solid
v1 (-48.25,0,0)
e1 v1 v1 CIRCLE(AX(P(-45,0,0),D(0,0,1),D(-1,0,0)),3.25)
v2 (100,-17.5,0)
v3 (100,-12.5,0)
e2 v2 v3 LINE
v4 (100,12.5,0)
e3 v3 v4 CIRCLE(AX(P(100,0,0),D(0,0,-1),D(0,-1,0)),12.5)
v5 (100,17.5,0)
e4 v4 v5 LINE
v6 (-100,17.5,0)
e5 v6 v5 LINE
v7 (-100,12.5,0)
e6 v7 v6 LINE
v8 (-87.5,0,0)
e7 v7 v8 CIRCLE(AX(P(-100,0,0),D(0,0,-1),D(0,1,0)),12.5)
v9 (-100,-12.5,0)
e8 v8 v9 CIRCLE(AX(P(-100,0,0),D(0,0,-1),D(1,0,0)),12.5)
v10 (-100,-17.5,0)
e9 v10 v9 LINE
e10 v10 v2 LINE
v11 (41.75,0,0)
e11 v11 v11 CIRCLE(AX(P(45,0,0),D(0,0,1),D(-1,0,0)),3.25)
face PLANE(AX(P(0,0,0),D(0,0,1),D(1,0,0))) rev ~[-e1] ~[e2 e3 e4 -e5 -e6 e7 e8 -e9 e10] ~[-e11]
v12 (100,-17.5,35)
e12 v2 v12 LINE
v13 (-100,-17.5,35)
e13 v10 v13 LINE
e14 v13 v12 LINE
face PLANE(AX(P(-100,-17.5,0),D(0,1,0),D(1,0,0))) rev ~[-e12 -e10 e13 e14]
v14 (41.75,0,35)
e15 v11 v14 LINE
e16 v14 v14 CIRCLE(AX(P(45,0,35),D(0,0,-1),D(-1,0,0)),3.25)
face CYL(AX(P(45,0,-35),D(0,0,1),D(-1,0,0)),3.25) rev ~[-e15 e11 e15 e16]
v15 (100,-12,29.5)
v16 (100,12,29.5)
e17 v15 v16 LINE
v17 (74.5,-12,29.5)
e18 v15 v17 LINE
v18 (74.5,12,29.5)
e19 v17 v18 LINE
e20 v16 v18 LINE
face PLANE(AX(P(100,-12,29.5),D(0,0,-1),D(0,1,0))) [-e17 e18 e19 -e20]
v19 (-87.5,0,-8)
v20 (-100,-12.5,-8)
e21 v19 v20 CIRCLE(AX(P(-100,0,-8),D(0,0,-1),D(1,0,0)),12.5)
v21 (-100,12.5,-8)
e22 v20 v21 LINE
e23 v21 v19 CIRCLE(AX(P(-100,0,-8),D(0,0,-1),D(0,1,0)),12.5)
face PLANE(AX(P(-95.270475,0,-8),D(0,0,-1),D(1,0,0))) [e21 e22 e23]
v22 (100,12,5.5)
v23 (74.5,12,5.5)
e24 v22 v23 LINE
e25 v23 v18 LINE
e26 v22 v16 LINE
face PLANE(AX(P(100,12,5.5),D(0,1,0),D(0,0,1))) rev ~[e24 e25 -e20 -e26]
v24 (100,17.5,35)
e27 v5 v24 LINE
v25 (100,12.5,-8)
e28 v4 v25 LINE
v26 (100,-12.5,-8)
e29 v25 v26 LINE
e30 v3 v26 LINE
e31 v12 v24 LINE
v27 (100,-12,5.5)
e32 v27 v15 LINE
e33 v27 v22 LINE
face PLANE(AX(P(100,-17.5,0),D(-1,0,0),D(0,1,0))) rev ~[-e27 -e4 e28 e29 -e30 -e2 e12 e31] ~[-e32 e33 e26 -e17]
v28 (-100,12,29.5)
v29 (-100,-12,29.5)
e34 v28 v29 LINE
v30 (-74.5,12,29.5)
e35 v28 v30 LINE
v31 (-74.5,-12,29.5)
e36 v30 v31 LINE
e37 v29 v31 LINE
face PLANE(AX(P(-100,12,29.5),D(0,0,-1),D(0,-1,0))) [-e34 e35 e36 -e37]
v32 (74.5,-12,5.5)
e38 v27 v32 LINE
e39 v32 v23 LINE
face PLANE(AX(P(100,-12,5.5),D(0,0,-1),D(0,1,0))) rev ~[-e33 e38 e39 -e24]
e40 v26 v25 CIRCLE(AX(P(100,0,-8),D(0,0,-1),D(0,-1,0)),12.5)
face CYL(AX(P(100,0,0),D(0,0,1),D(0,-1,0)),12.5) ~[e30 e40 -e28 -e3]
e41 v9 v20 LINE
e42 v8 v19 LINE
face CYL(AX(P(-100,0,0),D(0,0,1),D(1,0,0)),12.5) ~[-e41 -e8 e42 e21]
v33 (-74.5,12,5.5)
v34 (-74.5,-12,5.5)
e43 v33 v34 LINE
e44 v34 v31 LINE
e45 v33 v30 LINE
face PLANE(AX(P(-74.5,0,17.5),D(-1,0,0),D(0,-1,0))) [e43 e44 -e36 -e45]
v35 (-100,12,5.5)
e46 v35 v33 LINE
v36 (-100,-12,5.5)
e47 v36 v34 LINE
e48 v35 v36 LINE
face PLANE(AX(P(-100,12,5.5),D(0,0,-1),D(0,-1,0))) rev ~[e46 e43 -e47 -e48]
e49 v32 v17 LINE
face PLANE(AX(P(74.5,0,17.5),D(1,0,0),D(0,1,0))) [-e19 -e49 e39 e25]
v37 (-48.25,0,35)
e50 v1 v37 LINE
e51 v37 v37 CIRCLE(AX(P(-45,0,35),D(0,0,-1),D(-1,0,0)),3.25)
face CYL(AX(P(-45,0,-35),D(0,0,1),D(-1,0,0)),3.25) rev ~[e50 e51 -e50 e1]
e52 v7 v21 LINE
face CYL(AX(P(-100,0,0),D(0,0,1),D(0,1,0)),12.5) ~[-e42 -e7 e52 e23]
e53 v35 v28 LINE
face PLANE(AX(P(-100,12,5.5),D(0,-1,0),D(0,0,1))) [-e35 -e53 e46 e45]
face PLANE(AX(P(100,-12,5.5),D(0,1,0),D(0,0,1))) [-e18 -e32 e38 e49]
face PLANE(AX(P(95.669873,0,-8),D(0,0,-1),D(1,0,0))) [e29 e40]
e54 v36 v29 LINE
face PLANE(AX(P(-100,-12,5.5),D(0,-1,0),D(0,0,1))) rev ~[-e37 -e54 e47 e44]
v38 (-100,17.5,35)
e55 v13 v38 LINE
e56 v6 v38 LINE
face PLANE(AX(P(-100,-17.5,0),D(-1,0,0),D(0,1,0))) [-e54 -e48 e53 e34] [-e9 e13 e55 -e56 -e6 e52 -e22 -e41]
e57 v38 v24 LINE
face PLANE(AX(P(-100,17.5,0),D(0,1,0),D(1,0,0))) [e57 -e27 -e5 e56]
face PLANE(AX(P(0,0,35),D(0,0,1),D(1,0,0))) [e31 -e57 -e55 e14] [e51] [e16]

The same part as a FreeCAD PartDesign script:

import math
import FreeCAD as App
import Part
import Sketcher
from FreeCAD import Vector
Q = App.Units.Quantity

doc = App.newDocument("Part")
params = doc.addObject("Spreadsheet::Sheet", "Params")
for row, (alias, value) in enumerate([
    ("sketch1_width", "200 mm"),
    ("sketch1_height", "35 mm"),
    ("pad1_length", "35 mm"),
    ("sketch2_width", "24 mm"),
    ("pocket1_length", "25.5 mm"),
    ("sketch3_width", "24 mm"),
    ("pocket2_length", "25.5 mm"),
    ("sketch4_diameter", "6.5 mm"),
    ("hole_diameter", "6.5 mm"),
    ("hole_depth", "35 mm"),
    ("sketch5_radius", "12.5 mm"),
    ("pad2_length", "8 mm"),
], start=1):
    params.set(f"A{row}", alias)
    params.set(f"B{row}", "=" + value)
    params.setAlias(f"B{row}", alias)

body = doc.addObject("PartDesign::Body", "Body")

sketch1 = body.newObject("Sketcher::SketchObject", "Sketch")
sketch1.AttachmentSupport = (doc.getObject("XY_Plane"), [""])
sketch1.MapMode = "FlatFace"
sketch1.addGeometry([
    Part.LineSegment(Vector(-100, 18, 0), Vector(-100, -18, 0)),
    Part.LineSegment(Vector(-100, -18, 0), Vector(100, -18, 0)),
    Part.LineSegment(Vector(100, -18, 0), Vector(100, 18, 0)),
    Part.LineSegment(Vector(100, 18, 0), Vector(-100, 18, 0)),
], False)
sketch1.addConstraint([
    Sketcher.Constraint("Coincident", 0, 2, 1, 1),
    Sketcher.Constraint("Coincident", 1, 2, 2, 1),
    Sketcher.Constraint("Coincident", 2, 2, 3, 1),
    Sketcher.Constraint("Coincident", 3, 2, 0, 1),
    Sketcher.Constraint("Vertical", 0),
    Sketcher.Constraint("Horizontal", 1),
    Sketcher.Constraint("Vertical", 2),
    Sketcher.Constraint("Horizontal", 3),
    Sketcher.Constraint("Symmetric", 0, 2, 2, 2, -1, 1),
    Sketcher.Constraint("DistanceX", 1, 1, 1, 2, Q("200 mm")),
    Sketcher.Constraint("DistanceY", 0, 2, 0, 1, Q("35 mm")),
])
sketch1.setExpression("Constraints[9]", "Params.sketch1_width")
sketch1.setExpression("Constraints[10]", "Params.sketch1_height")
pad1 = body.newObject("PartDesign::Pad", "Pad")
pad1.Profile = sketch1
pad1.setExpression("Length", "Params.pad1_length")

sketch2 = body.newObject("Sketcher::SketchObject", "Sketch001")
sketch2.AttachmentSupport = (doc.getObject("YZ_Plane"), [""])
sketch2.MapMode = "FlatFace"
sketch2.AttachmentOffset = App.Placement(Vector(0, 0, 100), App.Rotation())
sketch2.addGeometry([
    Part.LineSegment(Vector(-12, 30, 0), Vector(-12, 6, 0)),
    Part.LineSegment(Vector(-12, 6, 0), Vector(12, 6, 0)),
    Part.LineSegment(Vector(12, 6, 0), Vector(12, 30, 0)),
    Part.LineSegment(Vector(12, 30, 0), Vector(-12, 30, 0)),
], False)
sketch2.addConstraint([
    Sketcher.Constraint("Coincident", 0, 2, 1, 1),
    Sketcher.Constraint("Coincident", 1, 2, 2, 1),
    Sketcher.Constraint("Coincident", 2, 2, 3, 1),
    Sketcher.Constraint("Coincident", 3, 2, 0, 1),
    Sketcher.Constraint("Vertical", 0),
    Sketcher.Constraint("Horizontal", 1),
    Sketcher.Constraint("Vertical", 2),
    Sketcher.Constraint("Horizontal", 3),
    Sketcher.Constraint("Equal", 3, 0),
    Sketcher.Constraint("DistanceX", 1, 1, 1, 2, Q("24 mm")),
    Sketcher.Constraint("DistanceX", 0, 2, -1, 1, Q("12 mm")),
    Sketcher.Constraint("DistanceY", -1, 1, 0, 2, Q("5.5 mm")),
])
sketch2.setExpression("Constraints[9]", "Params.sketch2_width")
pocket1 = body.newObject("PartDesign::Pocket", "Pocket")
pocket1.Profile = sketch2
pocket1.setExpression("Length", "Params.pocket1_length")

sketch3 = body.newObject("Sketcher::SketchObject", "Sketch002")
sketch3.AttachmentSupport = (doc.getObject("YZ_Plane"), [""])
sketch3.MapMode = "FlatFace"
sketch3.AttachmentOffset = App.Placement(Vector(0, 0, -100), App.Rotation())
sketch3.addGeometry([
    Part.LineSegment(Vector(12, 30, 0), Vector(12, 6, 0)),
    Part.LineSegment(Vector(12, 6, 0), Vector(-12, 6, 0)),
    Part.LineSegment(Vector(-12, 6, 0), Vector(-12, 30, 0)),
    Part.LineSegment(Vector(-12, 30, 0), Vector(12, 30, 0)),
], False)
sketch3.addConstraint([
    Sketcher.Constraint("Coincident", 0, 2, 1, 1),
    Sketcher.Constraint("Coincident", 1, 2, 2, 1),
    Sketcher.Constraint("Coincident", 2, 2, 3, 1),
    Sketcher.Constraint("Coincident", 3, 2, 0, 1),
    Sketcher.Constraint("Vertical", 0),
    Sketcher.Constraint("Horizontal", 1),
    Sketcher.Constraint("Vertical", 2),
    Sketcher.Constraint("Horizontal", 3),
    Sketcher.Constraint("Equal", 3, 0),
    Sketcher.Constraint("DistanceX", 1, 2, 1, 1, Q("24 mm")),
    Sketcher.Constraint("DistanceX", -1, 1, 0, 2, Q("12 mm")),
    Sketcher.Constraint("DistanceY", -1, 1, 0, 2, Q("5.5 mm")),
])
sketch3.setExpression("Constraints[9]", "Params.sketch3_width")
pocket2 = body.newObject("PartDesign::Pocket", "Pocket001")
pocket2.Profile = sketch3
pocket2.setExpression("Length", "Params.pocket2_length")
pocket2.Reversed = True

sketch4 = body.newObject("Sketcher::SketchObject", "Sketch003")
sketch4.AttachmentSupport = (doc.getObject("XY_Plane"), [""])
sketch4.MapMode = "FlatFace"
sketch4.addGeometry([
    Part.Circle(Vector(-45, 0, 0), Vector(0, 0, 1), 3.2),
    Part.Circle(Vector(45, 0, 0), Vector(0, 0, 1), 3.2),
], False)
sketch4.addConstraint([
    Sketcher.Constraint("Equal", 0, 1),
    Sketcher.Constraint("Symmetric", 0, 3, 1, 3, -1, 1),
    Sketcher.Constraint("PointOnObject", 0, 3, -1),
    Sketcher.Constraint("Diameter", 0, Q("6.5 mm")),
    Sketcher.Constraint("DistanceX", 0, 3, -1, 1, Q("45 mm")),
])
sketch4.setExpression("Constraints[3]", "Params.sketch4_diameter")
doc.recompute()
hole = body.newObject("PartDesign::Hole", "Hole")
hole.Profile = sketch4
hole.ThreadType = "None"
hole.setExpression("Diameter", "Params.hole_diameter")
hole.DepthType = "Dimension"
hole.setExpression("Depth", "Params.hole_depth")
hole.DrillPoint = "Angled"
hole.DrillPointAngle = 118
hole.Reversed = True

sketch5 = body.newObject("Sketcher::SketchObject", "Sketch004")
sketch5.AttachmentSupport = (doc.getObject("XY_Plane"), [""])
sketch5.MapMode = "FlatFace"
sketch5.addGeometry([
    Part.LineSegment(Vector(100, 12, 0), Vector(100, -12, 0)),
    Part.ArcOfCircle(Part.Circle(Vector(100, 0, 0), Vector(0, 0, 1), 12), math.radians(90), math.radians(270)),
    Part.ArcOfCircle(Part.Circle(Vector(-100, 0, 0), Vector(0, 0, 1), 12), math.radians(-90), math.radians(0)),
    Part.LineSegment(Vector(-100, -12, 0), Vector(-100, 12, 0)),
    Part.ArcOfCircle(Part.Circle(Vector(-100, 0, 0), Vector(0, 0, 1), 12), math.radians(0), math.radians(90)),
], False)
sketch5.addConstraint([
    Sketcher.Constraint("Coincident", 0, 1, 1, 1),
    Sketcher.Constraint("Coincident", 1, 2, 0, 2),
    Sketcher.Constraint("Coincident", 2, 1, 3, 1),
    Sketcher.Constraint("Coincident", 3, 2, 4, 2),
    Sketcher.Constraint("Tangent", 4, 1, 2, 2),
    Sketcher.Constraint("Vertical", 0),
    Sketcher.Constraint("Vertical", 3),
    Sketcher.Constraint("Equal", 1, 2),
    Sketcher.Constraint("Equal", 2, 4),
    Sketcher.Constraint("Symmetric", 1, 3, 2, 3, -1, 1),
    Sketcher.Constraint("Symmetric", 1, 2, 2, 1, -2),
    Sketcher.Constraint("PointOnObject", 4, 1, -1),
    Sketcher.Constraint("Vertical", 1, 3, 0, 1),
    Sketcher.Constraint("Radius", 1, Q("12.5 mm")),
    Sketcher.Constraint("DistanceX", -1, 1, 1, 3, Q("100 mm")),
])
sketch5.setExpression("Constraints[13]", "Params.sketch5_radius")
pad2 = body.newObject("PartDesign::Pad", "Pad001")
pad2.Profile = sketch5
pad2.setExpression("Length", "Params.pad2_length")
pad2.Reversed = True

doc.recompute()
